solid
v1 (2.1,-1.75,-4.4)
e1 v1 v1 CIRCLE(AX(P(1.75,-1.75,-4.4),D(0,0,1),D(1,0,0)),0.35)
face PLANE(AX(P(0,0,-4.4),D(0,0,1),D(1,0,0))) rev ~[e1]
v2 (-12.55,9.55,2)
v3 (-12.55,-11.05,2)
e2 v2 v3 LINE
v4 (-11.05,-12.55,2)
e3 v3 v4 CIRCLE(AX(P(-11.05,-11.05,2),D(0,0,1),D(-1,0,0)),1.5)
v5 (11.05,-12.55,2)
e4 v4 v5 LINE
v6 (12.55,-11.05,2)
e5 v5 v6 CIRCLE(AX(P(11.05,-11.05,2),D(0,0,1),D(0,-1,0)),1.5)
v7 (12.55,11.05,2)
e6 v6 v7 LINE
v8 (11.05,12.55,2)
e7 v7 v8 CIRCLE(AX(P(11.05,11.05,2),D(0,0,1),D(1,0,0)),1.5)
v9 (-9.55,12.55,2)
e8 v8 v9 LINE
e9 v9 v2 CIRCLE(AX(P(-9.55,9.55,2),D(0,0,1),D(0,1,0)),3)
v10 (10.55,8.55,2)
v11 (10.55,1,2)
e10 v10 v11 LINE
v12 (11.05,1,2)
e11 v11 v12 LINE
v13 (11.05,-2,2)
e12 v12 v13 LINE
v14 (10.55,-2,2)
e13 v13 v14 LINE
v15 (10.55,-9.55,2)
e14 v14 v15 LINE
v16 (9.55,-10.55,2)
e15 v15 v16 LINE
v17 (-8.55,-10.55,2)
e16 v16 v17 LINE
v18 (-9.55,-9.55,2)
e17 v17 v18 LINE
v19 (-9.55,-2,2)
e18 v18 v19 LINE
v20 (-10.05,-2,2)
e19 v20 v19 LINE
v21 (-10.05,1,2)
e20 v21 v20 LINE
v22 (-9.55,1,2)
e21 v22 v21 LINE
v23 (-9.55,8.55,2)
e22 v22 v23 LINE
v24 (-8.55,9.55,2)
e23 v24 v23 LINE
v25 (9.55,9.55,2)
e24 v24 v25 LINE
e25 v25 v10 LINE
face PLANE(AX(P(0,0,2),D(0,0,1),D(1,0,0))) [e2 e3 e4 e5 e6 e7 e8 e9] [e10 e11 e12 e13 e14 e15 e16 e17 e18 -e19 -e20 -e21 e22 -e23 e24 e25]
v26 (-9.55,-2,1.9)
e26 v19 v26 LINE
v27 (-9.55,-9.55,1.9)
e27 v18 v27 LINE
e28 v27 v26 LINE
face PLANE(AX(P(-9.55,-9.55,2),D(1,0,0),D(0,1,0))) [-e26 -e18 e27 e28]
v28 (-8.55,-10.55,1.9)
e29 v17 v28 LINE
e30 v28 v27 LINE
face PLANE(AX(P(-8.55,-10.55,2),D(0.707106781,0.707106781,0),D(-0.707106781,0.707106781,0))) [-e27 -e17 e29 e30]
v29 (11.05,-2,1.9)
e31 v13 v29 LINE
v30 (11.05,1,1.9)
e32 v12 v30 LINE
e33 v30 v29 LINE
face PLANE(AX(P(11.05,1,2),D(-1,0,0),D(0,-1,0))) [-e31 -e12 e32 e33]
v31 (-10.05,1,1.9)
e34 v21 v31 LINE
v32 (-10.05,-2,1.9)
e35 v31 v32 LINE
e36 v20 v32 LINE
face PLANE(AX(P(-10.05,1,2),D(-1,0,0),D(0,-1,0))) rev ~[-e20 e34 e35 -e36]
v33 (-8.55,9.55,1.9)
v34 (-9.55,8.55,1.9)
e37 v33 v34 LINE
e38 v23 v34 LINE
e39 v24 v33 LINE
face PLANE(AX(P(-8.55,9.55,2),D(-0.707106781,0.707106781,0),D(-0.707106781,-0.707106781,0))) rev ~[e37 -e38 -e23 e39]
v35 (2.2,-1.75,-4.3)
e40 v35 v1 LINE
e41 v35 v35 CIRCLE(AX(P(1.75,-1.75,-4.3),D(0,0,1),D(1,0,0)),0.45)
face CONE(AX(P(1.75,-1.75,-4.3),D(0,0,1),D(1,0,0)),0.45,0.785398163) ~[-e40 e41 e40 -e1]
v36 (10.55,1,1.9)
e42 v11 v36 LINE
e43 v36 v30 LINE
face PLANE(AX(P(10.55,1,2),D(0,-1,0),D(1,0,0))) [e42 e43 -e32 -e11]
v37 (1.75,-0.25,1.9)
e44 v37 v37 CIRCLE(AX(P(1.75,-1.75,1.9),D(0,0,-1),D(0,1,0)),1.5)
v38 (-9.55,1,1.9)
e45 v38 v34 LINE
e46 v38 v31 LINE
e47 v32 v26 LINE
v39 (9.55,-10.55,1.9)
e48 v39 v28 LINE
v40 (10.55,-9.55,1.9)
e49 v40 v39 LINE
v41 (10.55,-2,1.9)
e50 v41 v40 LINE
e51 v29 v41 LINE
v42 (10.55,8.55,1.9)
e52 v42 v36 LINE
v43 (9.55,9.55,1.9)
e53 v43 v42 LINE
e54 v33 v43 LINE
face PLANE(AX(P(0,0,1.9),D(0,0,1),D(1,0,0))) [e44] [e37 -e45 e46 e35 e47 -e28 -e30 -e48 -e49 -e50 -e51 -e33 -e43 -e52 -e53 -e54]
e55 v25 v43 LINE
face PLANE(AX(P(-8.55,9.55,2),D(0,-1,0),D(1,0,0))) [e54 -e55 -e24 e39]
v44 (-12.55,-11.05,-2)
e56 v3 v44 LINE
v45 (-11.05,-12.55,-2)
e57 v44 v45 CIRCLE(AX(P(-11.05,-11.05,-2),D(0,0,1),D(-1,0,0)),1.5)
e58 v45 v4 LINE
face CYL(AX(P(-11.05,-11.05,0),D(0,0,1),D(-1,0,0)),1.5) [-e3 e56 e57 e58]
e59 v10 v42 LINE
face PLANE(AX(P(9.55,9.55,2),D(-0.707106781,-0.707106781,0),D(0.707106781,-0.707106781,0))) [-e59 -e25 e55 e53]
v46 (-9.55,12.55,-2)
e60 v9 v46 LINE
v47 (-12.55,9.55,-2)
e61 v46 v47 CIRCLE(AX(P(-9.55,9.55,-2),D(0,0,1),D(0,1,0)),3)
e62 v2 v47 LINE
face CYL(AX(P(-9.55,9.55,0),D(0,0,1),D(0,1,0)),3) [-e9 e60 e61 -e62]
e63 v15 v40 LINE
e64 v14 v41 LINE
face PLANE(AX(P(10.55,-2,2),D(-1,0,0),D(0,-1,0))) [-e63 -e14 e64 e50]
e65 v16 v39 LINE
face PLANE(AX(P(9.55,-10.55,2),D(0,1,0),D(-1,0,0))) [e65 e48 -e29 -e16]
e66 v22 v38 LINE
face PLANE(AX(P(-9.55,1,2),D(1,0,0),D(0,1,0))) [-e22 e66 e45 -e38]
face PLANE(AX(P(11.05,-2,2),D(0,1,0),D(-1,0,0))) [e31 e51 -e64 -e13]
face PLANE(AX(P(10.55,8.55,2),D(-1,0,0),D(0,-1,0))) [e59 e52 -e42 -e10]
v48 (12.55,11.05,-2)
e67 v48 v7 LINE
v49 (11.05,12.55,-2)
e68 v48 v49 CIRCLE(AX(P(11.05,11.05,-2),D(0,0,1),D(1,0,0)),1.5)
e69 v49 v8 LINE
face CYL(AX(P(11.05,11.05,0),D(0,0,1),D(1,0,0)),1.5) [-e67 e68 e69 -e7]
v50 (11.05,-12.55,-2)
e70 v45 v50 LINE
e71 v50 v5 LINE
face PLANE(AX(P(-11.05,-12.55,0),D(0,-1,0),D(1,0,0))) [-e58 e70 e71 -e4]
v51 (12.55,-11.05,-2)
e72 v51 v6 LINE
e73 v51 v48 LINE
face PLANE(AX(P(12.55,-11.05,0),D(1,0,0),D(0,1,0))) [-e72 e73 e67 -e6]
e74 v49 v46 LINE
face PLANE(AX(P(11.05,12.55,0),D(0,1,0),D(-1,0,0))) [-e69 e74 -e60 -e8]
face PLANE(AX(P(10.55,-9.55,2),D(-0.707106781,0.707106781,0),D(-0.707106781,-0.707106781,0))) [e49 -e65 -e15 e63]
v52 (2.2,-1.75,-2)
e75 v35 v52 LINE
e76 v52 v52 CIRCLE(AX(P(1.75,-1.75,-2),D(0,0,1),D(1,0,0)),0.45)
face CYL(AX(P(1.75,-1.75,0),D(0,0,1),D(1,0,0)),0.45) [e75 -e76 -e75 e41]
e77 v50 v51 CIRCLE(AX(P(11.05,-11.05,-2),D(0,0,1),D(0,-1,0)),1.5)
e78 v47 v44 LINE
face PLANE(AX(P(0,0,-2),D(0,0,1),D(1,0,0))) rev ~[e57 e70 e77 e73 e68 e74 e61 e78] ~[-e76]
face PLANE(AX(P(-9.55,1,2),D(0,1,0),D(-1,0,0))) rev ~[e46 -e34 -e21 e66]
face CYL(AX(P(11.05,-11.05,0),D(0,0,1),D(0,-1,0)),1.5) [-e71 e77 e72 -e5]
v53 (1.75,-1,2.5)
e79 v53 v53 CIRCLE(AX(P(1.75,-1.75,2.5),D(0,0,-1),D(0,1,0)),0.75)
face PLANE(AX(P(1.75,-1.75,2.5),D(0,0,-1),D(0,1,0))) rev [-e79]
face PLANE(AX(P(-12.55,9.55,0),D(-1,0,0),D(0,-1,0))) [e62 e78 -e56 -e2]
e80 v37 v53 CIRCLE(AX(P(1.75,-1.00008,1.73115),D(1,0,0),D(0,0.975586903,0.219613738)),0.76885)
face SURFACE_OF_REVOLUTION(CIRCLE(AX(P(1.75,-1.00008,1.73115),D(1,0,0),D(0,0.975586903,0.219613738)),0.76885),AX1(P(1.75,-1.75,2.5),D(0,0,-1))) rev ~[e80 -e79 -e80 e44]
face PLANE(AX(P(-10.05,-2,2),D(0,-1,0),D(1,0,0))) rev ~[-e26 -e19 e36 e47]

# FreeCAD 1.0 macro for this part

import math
import FreeCAD as App
import Part
import Sketcher

V = App.Vector


def edges_at(feature, points):
    """Names of the edges that pass closest to the given points."""
    edges = feature.Shape.Edges
    near = lambda p: min(range(len(edges)), key=lambda i: edges[i].distToShape(Part.Vertex(*p))[0])
    return sorted({f"Edge{near(p) + 1}" for p in points})

doc = App.newDocument("Part")
params = doc.addObject("Spreadsheet::Sheet", "Params")
for row, (alias, value) in enumerate([
    ("sketch1_radius", "3 mm"),
    ("sketch1_radius2", "1.5 mm"),
    ("sketch1_width", "22.1 mm"),
    ("pad1_length", "4 mm"),
    ("sketch2_diameter", "0.9 mm"),
    ("pad2_length", "4.4 mm"),
    ("pad2_length2", "2.25 mm"),
    ("chamfer_size", "0.1 mm"),
    ("sketch3_height", "3 mm"),
    ("sketch3_width", "0.5 mm"),
    ("sketch3_width2", "18.1 mm"),
    ("sketch3_height2", "7.55 mm"),
    ("pocket1_length", "0.1 mm"),
    ("sketch4_width", "1.5 mm"),
    ("sketch4_height", "0.6 mm"),
    ("sketch4_width2", "0.75 mm"),
    ("revolution_angle", "360 deg"),
], start=1):
    params.set(f"A{row}", alias)
    params.set(f"B{row}", "=" + value)
    params.setAlias(f"B{row}", alias)

body = doc.addObject("PartDesign::Body", "Body")
body.AllowCompound = True

sketch1 = body.newObject("Sketcher::SketchObject", "Sketch")
sketch1.AttachmentSupport = (doc.getObject("XY_Plane"), [""])
sketch1.MapMode = "FlatFace"
sketch1.addGeometry(Part.ArcOfCircle(Part.Circle(V(-11.1, -11.1, 0), V(0, 0, 1), 1.5), math.radians(180), math.radians(270)), False)
sketch1.addGeometry(Part.LineSegment(V(-11.1, -12.6, 0), V(11.1, -12.6, 0)), False)
sketch1.addGeometry(Part.ArcOfCircle(Part.Circle(V(11.1, -11.1, 0), V(0, 0, 1), 1.5), math.radians(-90), math.radians(0)), False)
sketch1.addGeometry(Part.LineSegment(V(12.6, -11.1, 0), V(12.6, 11.1, 0)), False)
sketch1.addGeometry(Part.ArcOfCircle(Part.Circle(V(11.1, 11.1, 0), V(0, 0, 1), 1.5), math.radians(0), math.radians(90)), False)
sketch1.addGeometry(Part.LineSegment(V(11.1, 12.6, 0), V(-9.6, 12.6, 0)), False)
sketch1.addGeometry(Part.ArcOfCircle(Part.Circle(V(-9.6, 9.6, 0), V(0, 0, 1), 3), math.radians(90), math.radians(180)), False)
sketch1.addGeometry(Part.LineSegment(V(-12.6, 9.6, 0), V(-12.6, -11.1, 0)), False)
sketch1.addConstraint(Sketcher.Constraint("Tangent", 0, 2, 1, 1))
sketch1.addConstraint(Sketcher.Constraint("Tangent", 1, 2, 2, 1))
sketch1.addConstraint(Sketcher.Constraint("Tangent", 2, 2, 3, 1))
sketch1.addConstraint(Sketcher.Constraint("Tangent", 3, 2, 4, 1))
sketch1.addConstraint(Sketcher.Constraint("Tangent", 4, 2, 5, 1))
sketch1.addConstraint(Sketcher.Constraint("Tangent", 5, 2, 6, 1))
sketch1.addConstraint(Sketcher.Constraint("Tangent", 6, 2, 7, 1))
sketch1.addConstraint(Sketcher.Constraint("Tangent", 7, 2, 0, 1))
sketch1.addConstraint(Sketcher.Constraint("Horizontal", 1))
sketch1.addConstraint(Sketcher.Constraint("Vertical", 3))
sketch1.addConstraint(Sketcher.Constraint("Horizontal", 5))
sketch1.addConstraint(Sketcher.Constraint("Vertical", 7))
sketch1.addConstraint(Sketcher.Constraint("Equal", 0, 2))
sketch1.addConstraint(Sketcher.Constraint("Equal", 2, 4))
sketch1.addConstraint(Sketcher.Constraint("Symmetric", 0, 3, 4, 3, -1, 1))
sketch1.addConstraint(Sketcher.Constraint("Equal", 1, 3))
sketch1.addConstraint(Sketcher.Constraint("Radius", 6, 3.0))
sketch1.addConstraint(Sketcher.Constraint("Radius", 0, 1.5))
sketch1.addConstraint(Sketcher.Constraint("DistanceX", 1, 1, 1, 2, 22.1))
sketch1.setExpression("Constraints[16]", "Params.sketch1_radius")
sketch1.setExpression("Constraints[17]", "Params.sketch1_radius2")
sketch1.setExpression("Constraints[18]", "Params.sketch1_width")
pad1 = body.newObject("PartDesign::Pad", "Pad")
pad1.Profile = sketch1
pad1.setExpression("Length", "Params.pad1_length")
pad1.Midplane = True

sketch2 = body.newObject("Sketcher::SketchObject", "Sketch001")
sketch2.AttachmentSupport = (doc.getObject("XY_Plane"), [""])
sketch2.MapMode = "FlatFace"
sketch2.addGeometry(Part.Circle(V(1.75, -1.75, 0), V(0, 0, 1), 0.45), False)
sketch2.addConstraint(Sketcher.Constraint("Diameter", 0, 0.9))
sketch2.addConstraint(Sketcher.Constraint("DistanceX", -1, 1, 0, 3, 1.75))
sketch2.addConstraint(Sketcher.Constraint("DistanceY", 0, 3, -1, 1, 1.75))
sketch2.setExpression("Constraints[0]", "Params.sketch2_diameter")
pad2 = body.newObject("PartDesign::Pad", "Pad001")
pad2.Profile = sketch2
pad2.Type = "TwoLengths"
pad2.setExpression("Length", "Params.pad2_length")
pad2.setExpression("Length2", "Params.pad2_length2")
pad2.Reversed = True
doc.recompute()

chamfer = body.newObject("PartDesign::Chamfer", "Chamfer")
chamfer.Base = (pad2, edges_at(pad2, [(1.3, -1.75, -4.4)]))
chamfer.setExpression("Size", "Params.chamfer_size")

sketch3 = body.newObject("Sketcher::SketchObject", "Sketch002")
sketch3.AttachmentSupport = (doc.getObject("XY_Plane"), [""])
sketch3.MapMode = "FlatFace"
sketch3.AttachmentOffset = App.Placement(V(0, 0, 2), App.Rotation())
sketch3.addGeometry(Part.LineSegment(V(9.6, 9.6, 0), V(-8.6, 9.6, 0)), False)
sketch3.addGeometry(Part.LineSegment(V(-8.6, 9.6, 0), V(-9.6, 8.6, 0)), False)
sketch3.addGeometry(Part.LineSegment(V(-9.6, 8.6, 0), V(-9.6, 1, 0)), False)
sketch3.addGeometry(Part.LineSegment(V(-9.6, 1, 0), V(-10.1, 1, 0)), False)
sketch3.addGeometry(Part.LineSegment(V(-10.1, 1, 0), V(-10.1, -2, 0)), False)
sketch3.addGeometry(Part.LineSegment(V(-10.1, -2, 0), V(-9.6, -2, 0)), False)
sketch3.addGeometry(Part.LineSegment(V(-9.6, -2, 0), V(-9.6, -9.6, 0)), False)
sketch3.addGeometry(Part.LineSegment(V(-9.6, -9.6, 0), V(-8.6, -10.6, 0)), False)
sketch3.addGeometry(Part.LineSegment(V(-8.6, -10.6, 0), V(9.6, -10.6, 0)), False)
sketch3.addGeometry(Part.LineSegment(V(9.6, -10.6, 0), V(10.6, -9.6, 0)), False)
sketch3.addGeometry(Part.LineSegment(V(10.6, -9.6, 0), V(10.6, -2, 0)), False)
sketch3.addGeometry(Part.LineSegment(V(10.6, -2, 0), V(11.1, -2, 0)), False)
sketch3.addGeometry(Part.LineSegment(V(11.1, -2, 0), V(11.1, 1, 0)), False)
sketch3.addGeometry(Part.LineSegment(V(11.1, 1, 0), V(10.6, 1, 0)), False)
sketch3.addGeometry(Part.LineSegment(V(10.6, 1, 0), V(10.6, 8.6, 0)), False)
sketch3.addGeometry(Part.LineSegment(V(10.6, 8.6, 0), V(9.6, 9.6, 0)), False)
sketch3.addConstraint(Sketcher.Constraint("Coincident", 0, 2, 1, 1))
sketch3.addConstraint(Sketcher.Constraint("Coincident", 1, 2, 2, 1))
sketch3.addConstraint(Sketcher.Constraint("Coincident", 2, 2, 3, 1))
sketch3.addConstraint(Sketcher.Constraint("Coincident", 3, 2, 4, 1))
sketch3.addConstraint(Sketcher.Constraint("Coincident", 4, 2, 5, 1))
sketch3.addConstraint(Sketcher.Constraint("Coincident", 5, 2, 6, 1))
sketch3.addConstraint(Sketcher.Constraint("Coincident", 6, 2, 7, 1))
sketch3.addConstraint(Sketcher.Constraint("Coincident", 7, 2, 8, 1))
sketch3.addConstraint(Sketcher.Constraint("Coincident", 8, 2, 9, 1))
sketch3.addConstraint(Sketcher.Constraint("Coincident", 9, 2, 10, 1))
sketch3.addConstraint(Sketcher.Constraint("Coincident", 10, 2, 11, 1))
sketch3.addConstraint(Sketcher.Constraint("Coincident", 11, 2, 12, 1))
sketch3.addConstraint(Sketcher.Constraint("Coincident", 12, 2, 13, 1))
sketch3.addConstraint(Sketcher.Constraint("Coincident", 13, 2, 14, 1))
sketch3.addConstraint(Sketcher.Constraint("Coincident", 14, 2, 15, 1))
sketch3.addConstraint(Sketcher.Constraint("Coincident", 15, 2, 0, 1))
sketch3.addConstraint(Sketcher.Constraint("Horizontal", 0))
sketch3.addConstraint(Sketcher.Constraint("Vertical", 2))
sketch3.addConstraint(Sketcher.Constraint("Horizontal", 3))
sketch3.addConstraint(Sketcher.Constraint("Vertical", 4))
sketch3.addConstraint(Sketcher.Constraint("Horizontal", 5))
sketch3.addConstraint(Sketcher.Constraint("Vertical", 6))
sketch3.addConstraint(Sketcher.Constraint("Horizontal", 8))
sketch3.addConstraint(Sketcher.Constraint("Vertical", 10))
sketch3.addConstraint(Sketcher.Constraint("Horizontal", 11))
sketch3.addConstraint(Sketcher.Constraint("Vertical", 12))
sketch3.addConstraint(Sketcher.Constraint("Horizontal", 13))
sketch3.addConstraint(Sketcher.Constraint("Vertical", 14))
sketch3.addConstraint(Sketcher.Constraint("Symmetric", 6, 2, 15, 2, -1, 1))
sketch3.addConstraint(Sketcher.Constraint("Perpendicular", 1, 7))
sketch3.addConstraint(Sketcher.Constraint("Perpendicular", 7, 9))
sketch3.addConstraint(Sketcher.Constraint("Perpendicular", 9, 15))
sketch3.addConstraint(Sketcher.Constraint("Horizontal", 6, 2, 9, 2))
sketch3.addConstraint(Sketcher.Constraint("Horizontal", 5, 2, 10, 2))
sketch3.addConstraint(Sketcher.Constraint("Horizontal", 3, 2, 12, 2))
sketch3.addConstraint(Sketcher.Constraint("Horizontal", 1, 2, 14, 2))
sketch3.addConstraint(Sketcher.Constraint("Vertical", 2, 2, 5, 2))
sketch3.addConstraint(Sketcher.Constraint("Vertical", 0, 2, 7, 2))
sketch3.addConstraint(Sketcher.Constraint("Vertical", 10, 2, 13, 2))
sketch3.addConstraint(Sketcher.Constraint("Vertical", 8, 2, 15, 2))
sketch3.addConstraint(Sketcher.Constraint("Equal", 5, 11))
sketch3.addConstraint(Sketcher.Constraint("Equal", 2, 6))
sketch3.addConstraint(Sketcher.Constraint("DistanceY", 4, 2, 4, 1, 3.0))
sketch3.addConstraint(Sketcher.Constraint("DistanceX", 3, 2, 3, 1, 0.5))
sketch3.addConstraint(Sketcher.Constraint("DistanceY", -1, 1, 2, 2, 1.0))
sketch3.addConstraint(Sketcher.Constraint("DistanceX", 0, 2, 0, 1, 18.1))
sketch3.addConstraint(Sketcher.Constraint("DistanceY", 2, 2, 2, 1, 7.55))
sketch3.setExpression("Constraints[42]", "Params.sketch3_height")
sketch3.setExpression("Constraints[43]", "Params.sketch3_width")
sketch3.setExpression("Constraints[45]", "Params.sketch3_width2")
sketch3.setExpression("Constraints[46]", "Params.sketch3_height2")
pocket1 = body.newObject("PartDesign::Pocket", "Pocket")
pocket1.Profile = sketch3
pocket1.setExpression("Length", "Params.pocket1_length")

sketch4 = body.newObject("Sketcher::SketchObject", "Sketch003")
sketch4.AttachmentSupport = (doc.getObject("YZ_Plane"), [""])
sketch4.MapMode = "FlatFace"
sketch4.AttachmentOffset = App.Placement(V(0, 0, 1.75), App.Rotation())
sketch4.addGeometry(Part.LineSegment(V(-1.8, 2.5, 0), V(-1.8, 1.9, 0)), False)
sketch4.addGeometry(Part.LineSegment(V(-1.8, 1.9, 0), V(-0.2, 1.9, 0)), False)
sketch4.addGeometry(Part.ArcOfCircle(Part.Circle(V(-1, 1.7, 0), V(0, 0, 1), 0.8), math.radians(13), math.radians(90)), False)
sketch4.addGeometry(Part.LineSegment(V(-1, 2.5, 0), V(-1.8, 2.5, 0)), False)
sketch4.addGeometry(Part.LineSegment(V(-1.8, 2.5, 0), V(-1.8, 1.7, 0)), True)
sketch4.addConstraint(Sketcher.Constraint("Coincident", 0, 2, 1, 1))
sketch4.addConstraint(Sketcher.Constraint("Coincident", 1, 2, 2, 1))
sketch4.addConstraint(Sketcher.Constraint("Tangent", 2, 2, 3, 1))
sketch4.addConstraint(Sketcher.Constraint("Coincident", 3, 2, 0, 1))
sketch4.addConstraint(Sketcher.Constraint("Vertical", 0))
sketch4.addConstraint(Sketcher.Constraint("Horizontal", 1))
sketch4.addConstraint(Sketcher.Constraint("Horizontal", 3))
sketch4.addConstraint(Sketcher.Constraint("Vertical", 4))
sketch4.addConstraint(Sketcher.Constraint("Coincident", 4, 1, 3, 2))
sketch4.addConstraint(Sketcher.Constraint("Horizontal", 2, 3, 4, 2))
sketch4.addConstraint(Sketcher.Constraint("DistanceX", 1, 1, 1, 2, 1.5))
sketch4.addConstraint(Sketcher.Constraint("DistanceY", 0, 2, 0, 1, 0.6))
sketch4.addConstraint(Sketcher.Constraint("DistanceX", 2, 3, -1, 1, 1.0))
sketch4.addConstraint(Sketcher.Constraint("DistanceX", 3, 2, 3, 1, 0.75))
sketch4.addConstraint(Sketcher.Constraint("DistanceY", -1, 1, 0, 2, 1.9))
sketch4.setExpression("Constraints[10]", "Params.sketch4_width")
sketch4.setExpression("Constraints[11]", "Params.sketch4_height")
sketch4.setExpression("Constraints[13]", "Params.sketch4_width2")
revolution = body.newObject("PartDesign::Revolution", "Revolution")
revolution.Profile = sketch4
revolution.ReferenceAxis = (sketch4, ["Axis0"])
revolution.setExpression("Angle", "Params.revolution_angle")

doc.recompute()
